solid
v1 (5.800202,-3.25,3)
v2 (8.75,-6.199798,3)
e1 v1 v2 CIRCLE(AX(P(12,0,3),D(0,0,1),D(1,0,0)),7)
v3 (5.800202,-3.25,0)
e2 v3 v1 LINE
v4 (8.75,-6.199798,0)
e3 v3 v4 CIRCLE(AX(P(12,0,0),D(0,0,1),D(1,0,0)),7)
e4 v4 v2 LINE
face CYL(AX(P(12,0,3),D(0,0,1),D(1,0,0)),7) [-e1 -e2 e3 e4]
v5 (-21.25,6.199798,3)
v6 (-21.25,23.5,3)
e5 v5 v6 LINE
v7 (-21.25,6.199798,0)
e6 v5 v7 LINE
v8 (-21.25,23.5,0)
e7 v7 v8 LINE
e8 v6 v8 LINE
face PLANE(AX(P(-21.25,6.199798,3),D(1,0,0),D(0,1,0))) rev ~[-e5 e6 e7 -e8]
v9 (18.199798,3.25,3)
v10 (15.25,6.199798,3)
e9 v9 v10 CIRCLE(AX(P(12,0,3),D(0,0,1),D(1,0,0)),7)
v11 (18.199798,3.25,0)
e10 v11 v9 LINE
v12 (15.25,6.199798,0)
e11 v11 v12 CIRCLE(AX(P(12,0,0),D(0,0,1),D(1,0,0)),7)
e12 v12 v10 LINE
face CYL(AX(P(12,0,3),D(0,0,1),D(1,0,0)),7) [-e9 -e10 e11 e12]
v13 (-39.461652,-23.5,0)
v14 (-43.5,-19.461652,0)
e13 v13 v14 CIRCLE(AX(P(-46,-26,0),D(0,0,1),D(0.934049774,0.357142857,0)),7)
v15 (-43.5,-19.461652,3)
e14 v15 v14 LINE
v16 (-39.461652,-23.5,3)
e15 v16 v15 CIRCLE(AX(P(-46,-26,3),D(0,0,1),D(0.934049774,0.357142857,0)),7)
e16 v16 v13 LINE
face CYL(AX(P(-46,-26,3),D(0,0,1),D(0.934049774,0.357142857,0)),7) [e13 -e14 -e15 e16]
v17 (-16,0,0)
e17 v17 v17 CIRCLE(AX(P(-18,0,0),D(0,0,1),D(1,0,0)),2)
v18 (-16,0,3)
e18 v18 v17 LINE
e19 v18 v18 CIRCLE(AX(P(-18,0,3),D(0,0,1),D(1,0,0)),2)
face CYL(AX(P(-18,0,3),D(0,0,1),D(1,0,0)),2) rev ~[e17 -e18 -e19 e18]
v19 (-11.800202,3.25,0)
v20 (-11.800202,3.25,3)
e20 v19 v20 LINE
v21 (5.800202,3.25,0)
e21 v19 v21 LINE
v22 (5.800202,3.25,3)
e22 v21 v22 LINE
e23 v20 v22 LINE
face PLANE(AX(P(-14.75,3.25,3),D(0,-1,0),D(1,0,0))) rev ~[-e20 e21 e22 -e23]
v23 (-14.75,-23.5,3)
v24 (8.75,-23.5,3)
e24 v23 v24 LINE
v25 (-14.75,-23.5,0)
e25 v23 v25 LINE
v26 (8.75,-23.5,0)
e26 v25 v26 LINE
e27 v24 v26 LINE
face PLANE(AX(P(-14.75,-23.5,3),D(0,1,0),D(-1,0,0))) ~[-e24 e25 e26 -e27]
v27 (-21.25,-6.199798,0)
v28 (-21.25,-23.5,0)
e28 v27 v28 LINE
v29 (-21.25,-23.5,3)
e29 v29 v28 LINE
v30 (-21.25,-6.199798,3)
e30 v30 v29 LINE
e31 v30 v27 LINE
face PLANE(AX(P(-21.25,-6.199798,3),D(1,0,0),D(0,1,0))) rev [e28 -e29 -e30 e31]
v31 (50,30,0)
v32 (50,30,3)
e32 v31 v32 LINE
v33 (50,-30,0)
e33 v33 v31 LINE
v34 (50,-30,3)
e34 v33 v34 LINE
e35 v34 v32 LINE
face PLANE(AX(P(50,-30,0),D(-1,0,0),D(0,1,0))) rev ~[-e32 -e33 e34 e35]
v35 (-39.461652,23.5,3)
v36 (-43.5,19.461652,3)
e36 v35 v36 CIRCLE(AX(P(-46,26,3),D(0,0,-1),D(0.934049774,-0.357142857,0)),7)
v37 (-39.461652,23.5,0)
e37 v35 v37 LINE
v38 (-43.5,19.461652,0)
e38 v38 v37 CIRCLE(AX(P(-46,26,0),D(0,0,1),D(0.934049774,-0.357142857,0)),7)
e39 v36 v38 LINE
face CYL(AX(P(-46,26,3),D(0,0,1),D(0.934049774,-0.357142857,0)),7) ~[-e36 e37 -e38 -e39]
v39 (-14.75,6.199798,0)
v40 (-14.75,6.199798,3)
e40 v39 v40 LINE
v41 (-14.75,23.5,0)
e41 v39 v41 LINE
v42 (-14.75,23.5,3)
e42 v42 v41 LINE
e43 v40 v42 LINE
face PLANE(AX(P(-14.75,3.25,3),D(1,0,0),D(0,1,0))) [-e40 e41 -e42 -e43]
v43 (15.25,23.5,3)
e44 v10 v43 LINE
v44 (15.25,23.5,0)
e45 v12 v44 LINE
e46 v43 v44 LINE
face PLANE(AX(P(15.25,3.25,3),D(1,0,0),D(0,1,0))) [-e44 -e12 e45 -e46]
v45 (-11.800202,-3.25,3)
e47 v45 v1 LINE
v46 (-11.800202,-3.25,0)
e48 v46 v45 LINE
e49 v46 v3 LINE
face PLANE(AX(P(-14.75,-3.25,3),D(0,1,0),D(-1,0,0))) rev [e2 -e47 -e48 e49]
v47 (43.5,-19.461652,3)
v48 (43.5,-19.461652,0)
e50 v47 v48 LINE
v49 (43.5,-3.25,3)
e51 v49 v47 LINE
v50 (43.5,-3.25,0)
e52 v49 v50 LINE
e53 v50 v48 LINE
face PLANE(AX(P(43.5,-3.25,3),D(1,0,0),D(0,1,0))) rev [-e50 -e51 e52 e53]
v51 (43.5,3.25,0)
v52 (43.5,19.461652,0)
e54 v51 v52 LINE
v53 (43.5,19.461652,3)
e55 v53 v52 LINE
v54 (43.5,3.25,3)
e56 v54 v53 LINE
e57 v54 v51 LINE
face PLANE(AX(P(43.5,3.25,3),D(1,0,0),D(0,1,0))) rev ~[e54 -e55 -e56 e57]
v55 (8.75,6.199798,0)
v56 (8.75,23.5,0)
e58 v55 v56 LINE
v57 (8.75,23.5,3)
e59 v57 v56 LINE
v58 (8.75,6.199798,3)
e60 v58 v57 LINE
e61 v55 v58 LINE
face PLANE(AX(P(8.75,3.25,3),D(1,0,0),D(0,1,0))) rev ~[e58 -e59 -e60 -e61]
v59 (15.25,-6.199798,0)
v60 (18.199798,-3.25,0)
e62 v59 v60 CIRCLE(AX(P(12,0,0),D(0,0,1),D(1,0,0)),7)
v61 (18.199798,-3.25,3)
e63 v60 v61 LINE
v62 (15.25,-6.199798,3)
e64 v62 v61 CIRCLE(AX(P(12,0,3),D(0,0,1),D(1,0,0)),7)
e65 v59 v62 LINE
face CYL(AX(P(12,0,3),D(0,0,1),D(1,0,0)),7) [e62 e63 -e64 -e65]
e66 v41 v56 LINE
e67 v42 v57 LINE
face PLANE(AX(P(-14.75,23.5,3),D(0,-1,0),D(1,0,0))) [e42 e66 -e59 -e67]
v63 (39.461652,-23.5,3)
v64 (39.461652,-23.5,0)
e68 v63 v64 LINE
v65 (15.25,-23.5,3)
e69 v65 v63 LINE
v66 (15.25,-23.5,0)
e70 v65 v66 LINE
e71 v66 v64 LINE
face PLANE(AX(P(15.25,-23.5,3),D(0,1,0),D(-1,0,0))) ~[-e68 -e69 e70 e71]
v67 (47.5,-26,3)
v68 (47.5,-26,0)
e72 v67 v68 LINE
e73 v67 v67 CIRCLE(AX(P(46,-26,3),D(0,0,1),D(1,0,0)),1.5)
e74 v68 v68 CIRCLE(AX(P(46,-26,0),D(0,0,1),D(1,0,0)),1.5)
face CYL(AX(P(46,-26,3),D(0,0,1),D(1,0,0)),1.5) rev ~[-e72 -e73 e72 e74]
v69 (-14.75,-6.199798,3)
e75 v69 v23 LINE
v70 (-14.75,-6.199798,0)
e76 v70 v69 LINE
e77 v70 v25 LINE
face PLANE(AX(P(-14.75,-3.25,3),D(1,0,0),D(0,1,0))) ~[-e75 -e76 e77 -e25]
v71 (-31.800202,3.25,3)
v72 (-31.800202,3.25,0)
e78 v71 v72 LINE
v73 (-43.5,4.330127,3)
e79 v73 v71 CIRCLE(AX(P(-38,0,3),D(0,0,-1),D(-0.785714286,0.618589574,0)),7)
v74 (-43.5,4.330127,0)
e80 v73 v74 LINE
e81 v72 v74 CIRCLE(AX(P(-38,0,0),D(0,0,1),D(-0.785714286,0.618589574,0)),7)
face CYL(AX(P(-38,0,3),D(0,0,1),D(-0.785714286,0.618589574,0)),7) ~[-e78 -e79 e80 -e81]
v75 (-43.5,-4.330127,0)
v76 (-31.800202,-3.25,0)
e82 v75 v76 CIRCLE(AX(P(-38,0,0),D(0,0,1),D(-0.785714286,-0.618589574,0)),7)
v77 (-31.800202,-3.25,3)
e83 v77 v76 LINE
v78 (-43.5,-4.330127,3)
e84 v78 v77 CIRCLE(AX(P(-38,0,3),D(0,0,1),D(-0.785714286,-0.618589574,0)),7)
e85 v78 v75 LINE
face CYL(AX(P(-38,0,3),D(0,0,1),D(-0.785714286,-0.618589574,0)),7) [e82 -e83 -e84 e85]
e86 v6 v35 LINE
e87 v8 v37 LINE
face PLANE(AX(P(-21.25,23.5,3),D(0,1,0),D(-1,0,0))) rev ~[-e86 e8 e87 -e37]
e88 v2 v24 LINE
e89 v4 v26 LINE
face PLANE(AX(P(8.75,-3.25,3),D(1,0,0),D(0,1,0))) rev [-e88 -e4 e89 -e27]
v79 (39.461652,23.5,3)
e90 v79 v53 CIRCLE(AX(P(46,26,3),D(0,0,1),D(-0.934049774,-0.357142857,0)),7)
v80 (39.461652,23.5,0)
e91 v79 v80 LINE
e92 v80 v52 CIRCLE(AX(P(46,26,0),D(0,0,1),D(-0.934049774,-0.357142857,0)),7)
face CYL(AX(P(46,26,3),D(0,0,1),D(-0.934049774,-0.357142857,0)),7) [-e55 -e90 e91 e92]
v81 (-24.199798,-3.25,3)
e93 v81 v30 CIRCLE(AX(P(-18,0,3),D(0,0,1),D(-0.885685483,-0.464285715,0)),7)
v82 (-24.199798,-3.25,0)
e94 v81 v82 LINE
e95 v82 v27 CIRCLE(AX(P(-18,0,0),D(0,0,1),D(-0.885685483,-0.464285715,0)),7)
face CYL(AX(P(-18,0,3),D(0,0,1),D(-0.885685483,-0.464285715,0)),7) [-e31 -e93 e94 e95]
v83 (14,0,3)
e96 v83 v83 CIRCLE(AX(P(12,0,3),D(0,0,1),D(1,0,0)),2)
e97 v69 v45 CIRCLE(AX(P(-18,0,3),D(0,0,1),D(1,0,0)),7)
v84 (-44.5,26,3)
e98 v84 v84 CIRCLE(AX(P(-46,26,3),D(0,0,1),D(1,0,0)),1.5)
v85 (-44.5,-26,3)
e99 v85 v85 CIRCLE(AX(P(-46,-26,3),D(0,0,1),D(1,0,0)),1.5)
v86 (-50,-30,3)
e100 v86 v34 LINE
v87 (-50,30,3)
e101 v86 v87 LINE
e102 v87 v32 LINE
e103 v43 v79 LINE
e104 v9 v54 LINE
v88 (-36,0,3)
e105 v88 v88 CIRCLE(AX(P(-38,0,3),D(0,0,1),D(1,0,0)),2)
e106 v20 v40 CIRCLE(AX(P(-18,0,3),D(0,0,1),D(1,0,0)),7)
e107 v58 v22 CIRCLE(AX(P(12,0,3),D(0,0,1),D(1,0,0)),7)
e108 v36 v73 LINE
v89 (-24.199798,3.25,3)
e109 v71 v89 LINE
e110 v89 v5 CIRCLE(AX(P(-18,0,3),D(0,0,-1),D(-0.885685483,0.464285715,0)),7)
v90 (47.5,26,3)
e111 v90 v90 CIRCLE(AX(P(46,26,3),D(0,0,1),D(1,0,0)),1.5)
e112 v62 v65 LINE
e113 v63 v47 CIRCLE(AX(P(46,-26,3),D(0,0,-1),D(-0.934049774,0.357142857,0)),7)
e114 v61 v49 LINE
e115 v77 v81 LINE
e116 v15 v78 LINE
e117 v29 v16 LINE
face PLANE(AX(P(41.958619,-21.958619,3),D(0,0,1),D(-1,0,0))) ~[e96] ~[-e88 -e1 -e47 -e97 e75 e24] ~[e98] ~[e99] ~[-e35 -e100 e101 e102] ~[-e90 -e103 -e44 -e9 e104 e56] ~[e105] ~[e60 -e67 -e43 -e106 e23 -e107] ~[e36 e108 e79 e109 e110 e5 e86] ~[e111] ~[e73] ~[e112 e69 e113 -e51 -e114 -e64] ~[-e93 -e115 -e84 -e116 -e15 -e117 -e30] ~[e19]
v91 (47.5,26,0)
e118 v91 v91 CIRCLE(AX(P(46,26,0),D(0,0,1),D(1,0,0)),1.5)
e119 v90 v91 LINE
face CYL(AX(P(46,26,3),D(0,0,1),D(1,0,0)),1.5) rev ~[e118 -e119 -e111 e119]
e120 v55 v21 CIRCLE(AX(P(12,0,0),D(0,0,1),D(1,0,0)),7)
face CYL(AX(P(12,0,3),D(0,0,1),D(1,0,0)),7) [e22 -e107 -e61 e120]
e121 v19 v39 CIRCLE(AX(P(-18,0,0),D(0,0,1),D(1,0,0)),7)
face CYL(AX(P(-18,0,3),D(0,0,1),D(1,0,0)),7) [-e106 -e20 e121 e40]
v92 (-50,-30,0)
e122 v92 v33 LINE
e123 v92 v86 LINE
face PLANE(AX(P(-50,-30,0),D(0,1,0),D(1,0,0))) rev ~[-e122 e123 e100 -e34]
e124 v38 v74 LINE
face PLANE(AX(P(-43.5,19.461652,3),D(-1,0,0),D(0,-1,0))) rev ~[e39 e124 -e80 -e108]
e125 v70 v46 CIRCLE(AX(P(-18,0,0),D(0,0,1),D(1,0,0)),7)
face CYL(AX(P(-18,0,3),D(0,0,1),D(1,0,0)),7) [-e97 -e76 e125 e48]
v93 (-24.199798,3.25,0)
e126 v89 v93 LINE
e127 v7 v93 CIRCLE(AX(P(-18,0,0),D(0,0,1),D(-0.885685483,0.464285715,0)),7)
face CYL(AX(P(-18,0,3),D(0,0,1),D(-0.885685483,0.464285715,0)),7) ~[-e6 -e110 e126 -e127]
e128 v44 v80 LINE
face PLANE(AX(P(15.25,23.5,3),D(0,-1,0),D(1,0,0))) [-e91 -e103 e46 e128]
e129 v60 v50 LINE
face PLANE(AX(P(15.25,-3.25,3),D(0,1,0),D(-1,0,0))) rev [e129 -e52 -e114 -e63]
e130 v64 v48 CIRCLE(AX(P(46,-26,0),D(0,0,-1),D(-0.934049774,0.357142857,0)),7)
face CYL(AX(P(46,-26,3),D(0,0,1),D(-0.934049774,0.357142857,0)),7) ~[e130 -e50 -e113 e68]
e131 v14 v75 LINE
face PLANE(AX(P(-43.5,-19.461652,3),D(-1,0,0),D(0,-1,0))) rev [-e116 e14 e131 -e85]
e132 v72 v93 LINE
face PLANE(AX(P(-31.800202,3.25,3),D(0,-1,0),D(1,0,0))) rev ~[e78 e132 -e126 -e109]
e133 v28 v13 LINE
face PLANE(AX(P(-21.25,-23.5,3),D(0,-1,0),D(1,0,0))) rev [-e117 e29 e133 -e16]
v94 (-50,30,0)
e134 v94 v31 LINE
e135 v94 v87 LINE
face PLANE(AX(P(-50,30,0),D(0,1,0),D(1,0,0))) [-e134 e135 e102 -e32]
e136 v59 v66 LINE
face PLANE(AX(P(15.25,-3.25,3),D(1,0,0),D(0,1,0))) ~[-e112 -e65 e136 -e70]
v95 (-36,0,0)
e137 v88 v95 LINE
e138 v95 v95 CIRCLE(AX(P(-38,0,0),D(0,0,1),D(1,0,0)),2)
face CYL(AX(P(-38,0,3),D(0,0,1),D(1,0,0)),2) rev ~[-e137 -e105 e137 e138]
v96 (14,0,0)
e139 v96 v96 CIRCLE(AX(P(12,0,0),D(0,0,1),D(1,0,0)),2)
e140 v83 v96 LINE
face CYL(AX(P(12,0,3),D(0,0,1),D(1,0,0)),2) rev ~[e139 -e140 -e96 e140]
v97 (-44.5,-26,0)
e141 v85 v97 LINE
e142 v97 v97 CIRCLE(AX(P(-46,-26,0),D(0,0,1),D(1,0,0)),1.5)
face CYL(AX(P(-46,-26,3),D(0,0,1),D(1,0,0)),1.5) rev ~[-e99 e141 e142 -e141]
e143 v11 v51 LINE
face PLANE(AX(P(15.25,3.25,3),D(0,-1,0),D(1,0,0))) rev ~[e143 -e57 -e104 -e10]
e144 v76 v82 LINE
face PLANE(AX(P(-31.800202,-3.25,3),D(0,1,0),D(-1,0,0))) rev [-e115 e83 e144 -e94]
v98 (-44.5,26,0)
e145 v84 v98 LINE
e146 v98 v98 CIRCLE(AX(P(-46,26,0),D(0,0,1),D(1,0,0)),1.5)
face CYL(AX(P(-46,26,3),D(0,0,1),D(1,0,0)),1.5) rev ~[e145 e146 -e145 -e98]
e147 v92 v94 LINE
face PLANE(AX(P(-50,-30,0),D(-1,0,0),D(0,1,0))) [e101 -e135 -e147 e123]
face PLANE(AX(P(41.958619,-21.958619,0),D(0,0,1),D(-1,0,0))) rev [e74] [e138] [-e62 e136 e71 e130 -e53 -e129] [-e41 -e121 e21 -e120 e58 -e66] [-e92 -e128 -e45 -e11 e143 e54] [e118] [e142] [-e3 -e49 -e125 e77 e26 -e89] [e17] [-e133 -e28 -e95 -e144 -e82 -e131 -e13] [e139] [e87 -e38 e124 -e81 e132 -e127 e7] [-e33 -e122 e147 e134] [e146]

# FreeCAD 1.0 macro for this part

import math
import FreeCAD as App
import Part
import Sketcher
from FreeCAD import Vector


def add_polygon(sketch, points):
    """Adds a closed chain of lines whose ends are joined by coincident constraints."""
    first, n = sketch.GeometryCount, len(points)
    for a, b in zip(points, points[1:] + points[:1]):
        sketch.addGeometry(Part.LineSegment(App.Vector(*a, 0), App.Vector(*b, 0)), False)
    for i in range(n):
        sketch.addConstraint(Sketcher.Constraint("Coincident", first + i, 2, first + (i + 1) % n, 1))

doc = App.newDocument("Part")
body = doc.addObject("PartDesign::Body", "Body")

sketch1 = body.newObject("Sketcher::SketchObject", "Sketch")
sketch1.AttachmentSupport = (doc.getObject("XY_Plane"), [""])
sketch1.MapMode = "FlatFace"
add_polygon(sketch1, [(-50, 30), (-50, -30), (50, -30), (50, 30)])
sketch1.addConstraint([
    Sketcher.Constraint("Vertical", 0),
    Sketcher.Constraint("Horizontal", 1),
    Sketcher.Constraint("Vertical", 2),
    Sketcher.Constraint("Horizontal", 3),
    Sketcher.Constraint("Symmetric", 0, 2, 2, 2, -1, 1),
    Sketcher.Constraint("DistanceX", 1, 1, 1, 2, 100.0),
    Sketcher.Constraint("DistanceY", 0, 2, 0, 1, 60.0),
])
pad1 = body.newObject("PartDesign::Pad", "Pad")
pad1.Profile = sketch1
pad1.Length = 3

sketch2 = body.newObject("Sketcher::SketchObject", "Sketch001")
sketch2.AttachmentSupport = (doc.getObject("XY_Plane"), [""])
sketch2.MapMode = "FlatFace"
sketch2.AttachmentOffset = App.Placement(Vector(0, 0, 3), App.Rotation())
sketch2.addGeometry([
    Part.Circle(Vector(-38, 0, 0), Vector(0, 0, 1), 2),
    Part.Circle(Vector(-18, 0, 0), Vector(0, 0, 1), 2),
    Part.Circle(Vector(12, 0, 0), Vector(0, 0, 1), 2),
    Part.Circle(Vector(-46, 26, 0), Vector(0, 0, 1), 1.5),
    Part.Circle(Vector(46, 26, 0), Vector(0, 0, 1), 1.5),
    Part.Circle(Vector(46, -26, 0), Vector(0, 0, 1), 1.5),
    Part.Circle(Vector(-46, -26, 0), Vector(0, 0, 1), 1.5),
], False)
sketch2.addConstraint([
    Sketcher.Constraint("Equal", 0, 1),
    Sketcher.Constraint("Equal", 1, 2),
    Sketcher.Constraint("Equal", 3, 4),
    Sketcher.Constraint("Equal", 4, 5),
    Sketcher.Constraint("Equal", 5, 6),
    Sketcher.Constraint("Symmetric", 3, 3, 5, 3, -1, 1),
    Sketcher.Constraint("Symmetric", 4, 3, 6, 3, -1, 1),
    Sketcher.Constraint("Symmetric", 3, 3, 4, 3, -2),
    Sketcher.Constraint("PointOnObject", 0, 3, -1),
    Sketcher.Constraint("PointOnObject", 1, 3, -1),
    Sketcher.Constraint("PointOnObject", 2, 3, -1),
    Sketcher.Constraint("Diameter", 0, 4.0),
    Sketcher.Constraint("Diameter", 3, 3.0),
    Sketcher.Constraint("DistanceX", 0, 3, -1, 1, 38.0),
    Sketcher.Constraint("DistanceX", 1, 3, -1, 1, 18.0),
    Sketcher.Constraint("DistanceX", -1, 1, 2, 3, 12.0),
    Sketcher.Constraint("DistanceX", 3, 3, -1, 1, 46.0),
    Sketcher.Constraint("DistanceY", -1, 1, 3, 3, 26.0),
])
pocket1 = body.newObject("PartDesign::Pocket", "Pocket")
pocket1.Profile = sketch2
pocket1.Length = 3

sketch3 = body.newObject("Sketcher::SketchObject", "Sketch002")
sketch3.AttachmentSupport = (doc.getObject("XY_Plane"), [""])
sketch3.MapMode = "FlatFace"
sketch3.AttachmentOffset = App.Placement(Vector(0, 0, 3), App.Rotation())
add_polygon(sketch3, [(-15, 24), (-15, 3), (9, 3), (9, 24)])
sketch3.addConstraint([
    Sketcher.Constraint("Vertical", 0),
    Sketcher.Constraint("Horizontal", 1),
    Sketcher.Constraint("Vertical", 2),
    Sketcher.Constraint("Horizontal", 3),
    Sketcher.Constraint("DistanceX", 1, 1, 1, 2, 23.5),
    Sketcher.Constraint("DistanceY", 0, 2, 0, 1, 20.25),
    Sketcher.Constraint("DistanceY", -1, 1, 2, 2, 23.5),
    Sketcher.Constraint("DistanceX", 0, 2, -1, 1, 14.75),
])
pocket2 = body.newObject("PartDesign::Pocket", "Pocket001")
pocket2.Profile = sketch3
pocket2.Length = 10
doc.recompute()

mirrored = body.newObject("PartDesign::Mirrored", "Mirrored")
mirrored.Originals = [pocket2]
mirrored.MirrorPlane = (doc.getObject("XZ_Plane"), [""])
body.Tip = mirrored

sketch4 = body.newObject("Sketcher::SketchObject", "Sketch003")
sketch4.AttachmentSupport = (doc.getObject("XY_Plane"), [""])
sketch4.MapMode = "FlatFace"
sketch4.AttachmentOffset = App.Placement(Vector(0, 0, 3), App.Rotation())
sketch4.addGeometry([
    Part.LineSegment(Vector(-21.2, 23.5, 0), Vector(-39.5, 23.5, 0)),
    Part.ArcOfCircle(Part.Circle(Vector(-46, 26, 0), Vector(0, 0, 1), 7), math.radians(-69), math.radians(-21)),
    Part.LineSegment(Vector(-43.5, 19.5, 0), Vector(-43.5, 4.3, 0)),
    Part.ArcOfCircle(Part.Circle(Vector(-38, 0, 0), Vector(0, 0, 1), 7), math.radians(28), math.radians(142)),
    Part.LineSegment(Vector(-31.8, 3.2, 0), Vector(-24.2, 3.2, 0)),
    Part.ArcOfCircle(Part.Circle(Vector(-18, 0, 0), Vector(0, 0, 1), 7), math.radians(118), math.radians(152)),
    Part.LineSegment(Vector(-21.2, 6.2, 0), Vector(-21.2, 23.5, 0)),
], False)
sketch4.addConstraint([
    Sketcher.Constraint("Coincident", 0, 2, 1, 2),
    Sketcher.Constraint("Coincident", 1, 1, 2, 1),
    Sketcher.Constraint("Coincident", 2, 2, 3, 2),
    Sketcher.Constraint("Coincident", 3, 1, 4, 1),
    Sketcher.Constraint("Coincident", 4, 2, 5, 2),
    Sketcher.Constraint("Coincident", 5, 1, 6, 1),
    Sketcher.Constraint("Coincident", 6, 2, 0, 1),
    Sketcher.Constraint("Horizontal", 0),
    Sketcher.Constraint("Vertical", 2),
    Sketcher.Constraint("Horizontal", 4),
    Sketcher.Constraint("Vertical", 6),
    Sketcher.Constraint("Equal", 1, 3),
    Sketcher.Constraint("Equal", 3, 5),
    Sketcher.Constraint("PointOnObject", 3, 3, -1),
    Sketcher.Constraint("PointOnObject", 5, 3, -1),
    Sketcher.Constraint("Radius", 1, 7.0),
    Sketcher.Constraint("DistanceX", 1, 3, -1, 1, 46.0),
    Sketcher.Constraint("DistanceY", -1, 1, 1, 3, 26.0),
    Sketcher.Constraint("DistanceX", 3, 3, -1, 1, 38.0),
    Sketcher.Constraint("DistanceX", 5, 3, -1, 1, 18.0),
    Sketcher.Constraint("DistanceY", -1, 1, 0, 2, 23.5),
    Sketcher.Constraint("DistanceX", 1, 1, -1, 1, 43.5),
    Sketcher.Constraint("DistanceY", -1, 1, 3, 1, 3.25),
    Sketcher.Constraint("DistanceX", 5, 1, -1, 1, 21.25),
])
pocket3 = body.newObject("PartDesign::Pocket", "Pocket002")
pocket3.Profile = sketch4
pocket3.Length = 10
doc.recompute()

mirrored2 = body.newObject("PartDesign::Mirrored", "Mirrored001")
mirrored2.Originals = [pocket3]
mirrored2.MirrorPlane = (doc.getObject("XZ_Plane"), [""])
body.Tip = mirrored2

sketch5 = body.newObject("Sketcher::SketchObject", "Sketch004")
sketch5.AttachmentSupport = (doc.getObject("XY_Plane"), [""])
sketch5.MapMode = "FlatFace"
sketch5.AttachmentOffset = App.Placement(Vector(0, 0, 3), App.Rotation())
add_polygon(sketch5, [(15, 24), (15, 3), (44, 3), (44, 24)])
sketch5.addConstraint([
    Sketcher.Constraint("Vertical", 0),
    Sketcher.Constraint("Horizontal", 1),
    Sketcher.Constraint("Vertical", 2),
    Sketcher.Constraint("Horizontal", 3),
    Sketcher.Constraint("DistanceX", 1, 1, 1, 2, 28.25),
    Sketcher.Constraint("DistanceY", 0, 2, 0, 1, 20.25),
    Sketcher.Constraint("DistanceX", -1, 1, 1, 2, 43.5),
    Sketcher.Constraint("DistanceY", -1, 1, 2, 2, 23.5),
])
pocket4 = body.newObject("PartDesign::Pocket", "Pocket003")
pocket4.Profile = sketch5
pocket4.Length = 10

sketch6 = body.newObject("Sketcher::SketchObject", "Sketch005")
sketch6.AttachmentSupport = (doc.getObject("XY_Plane"), [""])
sketch6.MapMode = "FlatFace"
sketch6.AttachmentOffset = App.Placement(Vector(0, 0, 3), App.Rotation())
sketch6.addGeometry(Part.Circle(Vector(-18, 0, 0), Vector(0, 0, 1), 7), False)
sketch6.addConstraint([
    Sketcher.Constraint("PointOnObject", 0, 3, -1),
    Sketcher.Constraint("Diameter", 0, 14.0),
    Sketcher.Constraint("DistanceX", 0, 3, -1, 1, 18.0),
])
pad2 = body.newObject("PartDesign::Pad", "Pad001")
pad2.Profile = sketch6
pad2.Length = 3
pad2.Reversed = True

sketch7 = body.newObject("Sketcher::SketchObject", "Sketch006")
sketch7.AttachmentSupport = (doc.getObject("XY_Plane"), [""])
sketch7.MapMode = "FlatFace"
sketch7.AttachmentOffset = App.Placement(Vector(0, 0, 3), App.Rotation())
sketch7.addGeometry(Part.Circle(Vector(-18, 0, 0), Vector(0, 0, 1), 2), False)
sketch7.addConstraint([
    Sketcher.Constraint("PointOnObject", 0, 3, -1),
    Sketcher.Constraint("Diameter", 0, 4.0),
    Sketcher.Constraint("DistanceX", 0, 3, -1, 1, 18.0),
])
pocket5 = body.newObject("PartDesign::Pocket", "Pocket004")
pocket5.Profile = sketch7
pocket5.Length = 3
doc.recompute()

mirrored3 = body.newObject("PartDesign::Mirrored", "Mirrored002")
mirrored3.Originals = [pocket4]
mirrored3.MirrorPlane = (doc.getObject("XZ_Plane"), [""])
body.Tip = mirrored3

sketch8 = body.newObject("Sketcher::SketchObject", "Sketch007")
sketch8.AttachmentSupport = (doc.getObject("XY_Plane"), [""])
sketch8.MapMode = "FlatFace"
sketch8.AttachmentOffset = App.Placement(Vector(0, 0, 3), App.Rotation())
sketch8.addGeometry([
    Part.Circle(Vector(12, 0, 0), Vector(0, 0, 1), 7),
    Part.Circle(Vector(12, 0, 0), Vector(0, 0, 1), 2),
], False)
sketch8.addConstraint([
    Sketcher.Constraint("Coincident", 1, 3, 0, 3),
    Sketcher.Constraint("PointOnObject", 0, 3, -1),
    Sketcher.Constraint("Diameter", 0, 14.0),
    Sketcher.Constraint("Diameter", 1, 4.0),
    Sketcher.Constraint("DistanceX", -1, 1, 0, 3, 12.0),
])
pad3 = body.newObject("PartDesign::Pad", "Pad002")
pad3.Profile = sketch8
pad3.Length = 3
pad3.Reversed = True

sketch9 = body.newObject("Sketcher::SketchObject", "Sketch008")
sketch9.AttachmentSupport = (doc.getObject("XY_Plane"), [""])
sketch9.MapMode = "FlatFace"
sketch9.AttachmentOffset = App.Placement(Vector(0, 0, 3), App.Rotation())
sketch9.addGeometry([
    Part.LineSegment(Vector(43.5, 19.5, 0), Vector(43.5, 23.5, 0)),
    Part.LineSegment(Vector(43.5, 23.5, 0), Vector(39.5, 23.5, 0)),
    Part.ArcOfCircle(Part.Circle(Vector(46, 26, 0), Vector(0, 0, 1), 7), math.radians(-159), math.radians(-111)),
], False)
sketch9.addConstraint([
    Sketcher.Constraint("Coincident", 0, 2, 1, 1),
    Sketcher.Constraint("Coincident", 1, 2, 2, 1),
    Sketcher.Constraint("Coincident", 2, 2, 0, 1),
    Sketcher.Constraint("Vertical", 0),
    Sketcher.Constraint("Horizontal", 1),
    Sketcher.Constraint("Equal", 1, 0),
    Sketcher.Constraint("Radius", 2, 7.0),
    Sketcher.Constraint("DistanceX", -1, 1, 2, 3, 46.0),
    Sketcher.Constraint("DistanceY", -1, 1, 2, 3, 26.0),
    Sketcher.Constraint("DistanceX", -1, 1, 0, 2, 43.5),
])
pad4 = body.newObject("PartDesign::Pad", "Pad003")
pad4.Profile = sketch9
pad4.Length = 3
pad4.Reversed = True
doc.recompute()

mirrored4 = body.newObject("PartDesign::Mirrored", "Mirrored003")
mirrored4.Originals = [pad4]
mirrored4.MirrorPlane = (doc.getObject("XZ_Plane"), [""])
body.Tip = mirrored4

doc.recompute()
